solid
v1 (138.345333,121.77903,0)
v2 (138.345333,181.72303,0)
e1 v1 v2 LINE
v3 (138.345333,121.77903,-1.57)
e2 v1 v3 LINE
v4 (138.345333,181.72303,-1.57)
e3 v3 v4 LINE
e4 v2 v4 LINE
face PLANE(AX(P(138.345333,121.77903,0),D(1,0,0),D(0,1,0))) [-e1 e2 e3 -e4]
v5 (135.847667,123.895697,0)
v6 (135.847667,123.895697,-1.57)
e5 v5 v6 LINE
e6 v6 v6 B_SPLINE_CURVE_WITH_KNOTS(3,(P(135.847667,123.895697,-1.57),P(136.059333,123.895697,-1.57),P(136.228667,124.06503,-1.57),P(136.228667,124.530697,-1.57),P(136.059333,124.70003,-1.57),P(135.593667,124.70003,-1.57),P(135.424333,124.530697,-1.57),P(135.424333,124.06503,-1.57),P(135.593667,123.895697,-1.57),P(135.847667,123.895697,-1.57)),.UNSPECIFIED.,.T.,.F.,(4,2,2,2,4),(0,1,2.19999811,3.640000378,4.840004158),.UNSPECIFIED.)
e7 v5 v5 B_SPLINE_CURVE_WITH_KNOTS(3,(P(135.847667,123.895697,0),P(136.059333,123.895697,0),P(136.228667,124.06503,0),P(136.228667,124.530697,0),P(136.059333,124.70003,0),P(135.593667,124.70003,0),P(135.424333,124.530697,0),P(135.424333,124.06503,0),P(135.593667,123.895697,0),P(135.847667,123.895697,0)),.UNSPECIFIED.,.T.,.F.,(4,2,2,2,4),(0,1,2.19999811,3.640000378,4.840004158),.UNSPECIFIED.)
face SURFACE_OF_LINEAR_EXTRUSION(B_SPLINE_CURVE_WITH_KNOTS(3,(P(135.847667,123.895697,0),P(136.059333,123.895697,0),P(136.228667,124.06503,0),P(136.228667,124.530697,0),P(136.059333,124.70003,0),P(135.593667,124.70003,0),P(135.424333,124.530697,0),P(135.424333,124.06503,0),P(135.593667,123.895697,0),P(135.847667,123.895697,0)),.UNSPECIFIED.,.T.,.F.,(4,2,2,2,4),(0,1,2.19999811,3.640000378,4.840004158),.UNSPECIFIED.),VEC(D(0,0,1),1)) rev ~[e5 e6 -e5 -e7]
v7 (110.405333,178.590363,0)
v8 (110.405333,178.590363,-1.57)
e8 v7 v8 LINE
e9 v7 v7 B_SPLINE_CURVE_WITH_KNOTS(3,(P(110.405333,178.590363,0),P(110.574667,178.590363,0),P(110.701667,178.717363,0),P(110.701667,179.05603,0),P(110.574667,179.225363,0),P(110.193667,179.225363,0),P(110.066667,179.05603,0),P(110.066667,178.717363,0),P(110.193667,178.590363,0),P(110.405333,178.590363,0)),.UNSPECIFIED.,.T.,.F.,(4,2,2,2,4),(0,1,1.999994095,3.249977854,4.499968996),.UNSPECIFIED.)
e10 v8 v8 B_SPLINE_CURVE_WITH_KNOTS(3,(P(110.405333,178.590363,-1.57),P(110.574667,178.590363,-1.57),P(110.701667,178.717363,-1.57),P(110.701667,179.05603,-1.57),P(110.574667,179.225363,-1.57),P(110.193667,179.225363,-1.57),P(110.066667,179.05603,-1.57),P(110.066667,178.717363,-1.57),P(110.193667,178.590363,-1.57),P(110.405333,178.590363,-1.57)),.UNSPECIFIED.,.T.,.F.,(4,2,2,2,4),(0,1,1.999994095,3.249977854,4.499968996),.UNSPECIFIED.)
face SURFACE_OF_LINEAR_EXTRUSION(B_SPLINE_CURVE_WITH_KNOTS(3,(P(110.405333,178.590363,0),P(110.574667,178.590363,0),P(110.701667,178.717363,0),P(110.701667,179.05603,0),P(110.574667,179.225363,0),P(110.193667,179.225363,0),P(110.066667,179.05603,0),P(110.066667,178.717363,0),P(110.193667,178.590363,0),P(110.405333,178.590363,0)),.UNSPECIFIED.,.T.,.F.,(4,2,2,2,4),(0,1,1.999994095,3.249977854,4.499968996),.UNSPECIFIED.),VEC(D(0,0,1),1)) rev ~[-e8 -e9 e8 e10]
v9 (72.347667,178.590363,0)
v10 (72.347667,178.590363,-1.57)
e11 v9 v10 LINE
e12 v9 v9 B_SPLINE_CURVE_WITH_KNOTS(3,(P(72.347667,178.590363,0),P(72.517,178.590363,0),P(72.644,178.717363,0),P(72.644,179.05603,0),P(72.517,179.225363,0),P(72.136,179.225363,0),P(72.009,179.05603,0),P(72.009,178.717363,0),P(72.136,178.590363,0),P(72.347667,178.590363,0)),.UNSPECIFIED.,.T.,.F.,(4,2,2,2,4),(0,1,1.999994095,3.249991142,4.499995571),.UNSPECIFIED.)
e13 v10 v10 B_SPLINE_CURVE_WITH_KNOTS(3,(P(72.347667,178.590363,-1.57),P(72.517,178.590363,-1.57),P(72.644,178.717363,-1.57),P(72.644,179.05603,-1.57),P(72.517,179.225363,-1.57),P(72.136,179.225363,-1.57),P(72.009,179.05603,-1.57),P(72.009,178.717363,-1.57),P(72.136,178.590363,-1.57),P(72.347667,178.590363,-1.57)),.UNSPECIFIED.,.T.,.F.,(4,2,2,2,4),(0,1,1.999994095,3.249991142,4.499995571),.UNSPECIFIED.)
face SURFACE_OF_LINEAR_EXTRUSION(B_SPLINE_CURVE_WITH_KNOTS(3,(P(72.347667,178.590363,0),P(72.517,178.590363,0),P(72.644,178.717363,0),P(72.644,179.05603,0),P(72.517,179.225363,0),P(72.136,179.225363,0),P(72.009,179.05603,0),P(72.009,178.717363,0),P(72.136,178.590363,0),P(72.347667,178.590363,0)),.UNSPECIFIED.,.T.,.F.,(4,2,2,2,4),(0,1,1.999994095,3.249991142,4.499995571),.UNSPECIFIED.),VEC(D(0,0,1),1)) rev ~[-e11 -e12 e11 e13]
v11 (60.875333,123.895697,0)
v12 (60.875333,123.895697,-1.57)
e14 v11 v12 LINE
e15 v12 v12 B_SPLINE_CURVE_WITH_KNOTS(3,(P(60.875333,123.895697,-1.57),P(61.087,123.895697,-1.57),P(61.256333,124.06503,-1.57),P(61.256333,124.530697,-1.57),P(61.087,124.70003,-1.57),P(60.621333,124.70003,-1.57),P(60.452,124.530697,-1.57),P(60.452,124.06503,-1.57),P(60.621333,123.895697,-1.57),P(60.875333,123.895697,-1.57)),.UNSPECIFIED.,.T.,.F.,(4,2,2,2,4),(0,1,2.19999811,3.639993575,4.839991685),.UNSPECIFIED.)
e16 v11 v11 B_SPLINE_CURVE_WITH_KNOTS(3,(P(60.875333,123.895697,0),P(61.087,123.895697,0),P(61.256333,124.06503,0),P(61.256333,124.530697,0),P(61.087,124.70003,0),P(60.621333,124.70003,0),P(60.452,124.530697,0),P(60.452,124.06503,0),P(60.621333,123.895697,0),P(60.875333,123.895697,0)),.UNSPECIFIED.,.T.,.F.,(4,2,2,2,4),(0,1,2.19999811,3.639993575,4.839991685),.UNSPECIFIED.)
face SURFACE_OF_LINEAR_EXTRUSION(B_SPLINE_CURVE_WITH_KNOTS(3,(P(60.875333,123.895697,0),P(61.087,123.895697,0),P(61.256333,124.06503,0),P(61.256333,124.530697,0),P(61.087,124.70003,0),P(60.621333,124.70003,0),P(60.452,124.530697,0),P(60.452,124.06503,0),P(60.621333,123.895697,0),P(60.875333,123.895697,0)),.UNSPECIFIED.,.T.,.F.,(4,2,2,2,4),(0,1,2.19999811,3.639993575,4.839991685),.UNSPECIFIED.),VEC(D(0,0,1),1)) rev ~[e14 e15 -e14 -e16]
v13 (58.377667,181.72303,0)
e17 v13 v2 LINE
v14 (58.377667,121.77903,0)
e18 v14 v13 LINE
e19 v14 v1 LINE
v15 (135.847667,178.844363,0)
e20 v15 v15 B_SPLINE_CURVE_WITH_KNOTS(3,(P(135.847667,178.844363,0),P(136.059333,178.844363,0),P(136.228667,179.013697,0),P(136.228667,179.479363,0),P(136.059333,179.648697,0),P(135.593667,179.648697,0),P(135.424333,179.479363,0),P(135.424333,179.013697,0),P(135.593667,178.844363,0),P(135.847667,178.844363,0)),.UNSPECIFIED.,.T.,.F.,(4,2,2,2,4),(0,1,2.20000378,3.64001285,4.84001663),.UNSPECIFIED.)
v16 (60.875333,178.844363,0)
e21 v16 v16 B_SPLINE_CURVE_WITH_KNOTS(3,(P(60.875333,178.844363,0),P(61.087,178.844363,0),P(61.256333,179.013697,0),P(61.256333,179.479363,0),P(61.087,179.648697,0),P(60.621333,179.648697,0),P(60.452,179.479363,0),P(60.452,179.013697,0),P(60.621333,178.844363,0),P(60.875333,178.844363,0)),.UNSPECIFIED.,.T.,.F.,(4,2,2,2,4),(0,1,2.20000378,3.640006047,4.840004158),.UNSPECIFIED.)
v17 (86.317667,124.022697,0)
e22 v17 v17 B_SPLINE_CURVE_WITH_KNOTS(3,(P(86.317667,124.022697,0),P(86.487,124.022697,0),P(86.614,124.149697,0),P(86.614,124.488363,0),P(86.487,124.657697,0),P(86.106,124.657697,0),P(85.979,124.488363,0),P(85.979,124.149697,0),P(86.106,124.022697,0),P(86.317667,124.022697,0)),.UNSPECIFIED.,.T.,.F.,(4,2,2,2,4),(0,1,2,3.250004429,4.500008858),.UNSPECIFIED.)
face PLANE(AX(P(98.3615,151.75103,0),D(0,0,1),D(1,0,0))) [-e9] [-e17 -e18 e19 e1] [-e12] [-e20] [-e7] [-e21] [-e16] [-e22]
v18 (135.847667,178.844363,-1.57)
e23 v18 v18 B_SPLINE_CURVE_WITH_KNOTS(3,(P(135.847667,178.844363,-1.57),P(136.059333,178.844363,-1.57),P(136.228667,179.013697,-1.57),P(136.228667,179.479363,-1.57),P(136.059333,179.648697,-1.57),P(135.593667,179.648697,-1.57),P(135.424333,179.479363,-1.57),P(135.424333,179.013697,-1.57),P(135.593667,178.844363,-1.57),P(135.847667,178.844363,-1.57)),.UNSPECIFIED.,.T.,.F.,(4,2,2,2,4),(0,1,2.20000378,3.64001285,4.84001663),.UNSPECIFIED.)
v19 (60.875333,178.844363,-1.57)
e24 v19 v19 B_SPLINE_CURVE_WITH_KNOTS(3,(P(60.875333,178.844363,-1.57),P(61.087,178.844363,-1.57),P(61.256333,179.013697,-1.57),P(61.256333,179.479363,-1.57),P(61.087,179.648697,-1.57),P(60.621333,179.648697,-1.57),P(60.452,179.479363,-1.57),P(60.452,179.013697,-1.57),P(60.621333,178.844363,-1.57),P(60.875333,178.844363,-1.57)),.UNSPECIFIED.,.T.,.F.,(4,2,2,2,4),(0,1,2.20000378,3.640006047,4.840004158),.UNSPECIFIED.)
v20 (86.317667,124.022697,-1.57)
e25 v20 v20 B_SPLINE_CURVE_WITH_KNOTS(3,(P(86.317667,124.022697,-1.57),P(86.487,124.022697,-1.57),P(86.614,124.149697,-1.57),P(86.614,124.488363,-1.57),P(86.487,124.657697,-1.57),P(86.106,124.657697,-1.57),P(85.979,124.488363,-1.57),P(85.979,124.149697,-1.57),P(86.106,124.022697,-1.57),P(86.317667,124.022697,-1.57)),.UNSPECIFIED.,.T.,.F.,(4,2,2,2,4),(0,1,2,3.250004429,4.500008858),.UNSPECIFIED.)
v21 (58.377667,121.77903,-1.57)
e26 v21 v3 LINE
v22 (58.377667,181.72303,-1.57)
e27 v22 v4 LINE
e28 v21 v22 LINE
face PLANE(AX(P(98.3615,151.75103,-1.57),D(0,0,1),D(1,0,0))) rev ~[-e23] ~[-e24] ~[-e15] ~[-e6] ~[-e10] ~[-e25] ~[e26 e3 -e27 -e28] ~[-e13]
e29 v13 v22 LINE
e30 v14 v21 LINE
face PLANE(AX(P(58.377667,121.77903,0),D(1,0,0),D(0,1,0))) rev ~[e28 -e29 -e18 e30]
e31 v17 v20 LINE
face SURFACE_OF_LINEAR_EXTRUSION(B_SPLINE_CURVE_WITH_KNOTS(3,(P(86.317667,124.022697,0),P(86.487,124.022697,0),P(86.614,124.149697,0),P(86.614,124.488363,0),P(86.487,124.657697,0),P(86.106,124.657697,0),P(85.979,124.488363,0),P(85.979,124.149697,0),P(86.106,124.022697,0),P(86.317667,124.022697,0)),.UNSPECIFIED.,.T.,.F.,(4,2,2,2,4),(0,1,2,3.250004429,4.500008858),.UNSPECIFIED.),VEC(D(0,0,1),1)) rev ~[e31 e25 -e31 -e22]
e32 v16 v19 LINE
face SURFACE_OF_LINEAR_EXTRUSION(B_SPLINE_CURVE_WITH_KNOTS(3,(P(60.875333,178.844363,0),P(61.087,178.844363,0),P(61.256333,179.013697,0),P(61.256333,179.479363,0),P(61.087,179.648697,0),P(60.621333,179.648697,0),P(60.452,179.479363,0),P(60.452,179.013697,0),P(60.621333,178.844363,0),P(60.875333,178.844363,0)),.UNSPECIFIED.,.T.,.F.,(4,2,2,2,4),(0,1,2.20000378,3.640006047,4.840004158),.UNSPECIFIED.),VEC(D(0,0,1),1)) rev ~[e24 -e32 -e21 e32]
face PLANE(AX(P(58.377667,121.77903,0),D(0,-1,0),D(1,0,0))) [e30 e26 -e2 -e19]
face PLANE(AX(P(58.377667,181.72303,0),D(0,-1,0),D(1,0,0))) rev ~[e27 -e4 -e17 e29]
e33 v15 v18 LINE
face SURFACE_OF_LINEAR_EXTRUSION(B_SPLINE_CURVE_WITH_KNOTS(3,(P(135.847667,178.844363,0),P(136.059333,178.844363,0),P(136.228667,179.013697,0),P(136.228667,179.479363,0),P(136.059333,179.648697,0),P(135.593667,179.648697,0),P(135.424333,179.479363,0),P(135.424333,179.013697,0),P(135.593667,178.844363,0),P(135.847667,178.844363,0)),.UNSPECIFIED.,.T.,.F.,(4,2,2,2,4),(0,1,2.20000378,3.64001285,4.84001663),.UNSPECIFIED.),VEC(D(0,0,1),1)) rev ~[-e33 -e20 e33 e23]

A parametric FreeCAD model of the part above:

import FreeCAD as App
import Part
import Sketcher
from FreeCAD import Vector
Q = App.Units.Quantity

doc = App.newDocument("Part")
body = doc.addObject("PartDesign::Body", "Body")

# Sketch on XY plane
sketch1 = body.newObject("Sketcher::SketchObject", "Sketch")
sketch1.AttachmentSupport = (doc.getObject("XY_Plane"), [""])
sketch1.MapMode = "FlatFace"
sketch1.addGeometry(Part.LineSegment(Vector(58.377667, 181.72303, 0), Vector(58.377667, 121.77903, 0)), False)
sketch1.addGeometry(Part.LineSegment(Vector(58.377667, 121.77903, 0), Vector(138.345333, 121.77903, 0)), False)
sketch1.addGeometry(Part.LineSegment(Vector(138.345333, 121.77903, 0), Vector(138.345333, 181.72303, 0)), False)
sketch1.addGeometry(Part.LineSegment(Vector(138.345333, 181.72303, 0), Vector(58.377667, 181.72303, 0)), False)
sketch1.addGeometry(Part.BSplineCurve([Vector(60.875333, 123.895697, 0), Vector(61.087, 123.895697, 0), Vector(61.256333, 124.06503, 0), Vector(61.256333, 124.530697, 0), Vector(61.087, 124.70003, 0), Vector(60.621333, 124.70003, 0), Vector(60.452, 124.530697, 0), Vector(60.452, 124.06503, 0), Vector(60.621333, 123.895697, 0), Vector(60.875333, 123.895697, 0)], [4, 2, 2, 2, 4], [0, 1, 2.19999811, 3.639993575, 4.839991685], False, 3, [1, 1, 1, 1, 1, 1, 1, 1, 1, 1], False), False)
sketch1.addGeometry(Part.BSplineCurve([Vector(86.317667, 124.022697, 0), Vector(86.487, 124.022697, 0), Vector(86.614, 124.149697, 0), Vector(86.614, 124.488363, 0), Vector(86.487, 124.657697, 0), Vector(86.106, 124.657697, 0), Vector(85.979, 124.488363, 0), Vector(85.979, 124.149697, 0), Vector(86.106, 124.022697, 0), Vector(86.317667, 124.022697, 0)], [4, 2, 2, 2, 4], [0, 1, 2, 3.250004429, 4.500008858], False, 3, [1, 1, 1, 1, 1, 1, 1, 1, 1, 1], False), False)
sketch1.addGeometry(Part.BSplineCurve([Vector(135.847667, 123.895697, 0), Vector(136.059333, 123.895697, 0), Vector(136.228667, 124.06503, 0), Vector(136.228667, 124.530697, 0), Vector(136.059333, 124.70003, 0), Vector(135.593667, 124.70003, 0), Vector(135.424333, 124.530697, 0), Vector(135.424333, 124.06503, 0), Vector(135.593667, 123.895697, 0), Vector(135.847667, 123.895697, 0)], [4, 2, 2, 2, 4], [0, 1, 2.19999811, 3.640000378, 4.840004158], False, 3, [1, 1, 1, 1, 1, 1, 1, 1, 1, 1], False), False)
sketch1.addGeometry(Part.BSplineCurve([Vector(60.875333, 178.844363, 0), Vector(61.087, 178.844363, 0), Vector(61.256333, 179.013697, 0), Vector(61.256333, 179.479363, 0), Vector(61.087, 179.648697, 0), Vector(60.621333, 179.648697, 0), Vector(60.452, 179.479363, 0), Vector(60.452, 179.013697, 0), Vector(60.621333, 178.844363, 0), Vector(60.875333, 178.844363, 0)], [4, 2, 2, 2, 4], [0, 1, 2.20000378, 3.640006047, 4.840004158], False, 3, [1, 1, 1, 1, 1, 1, 1, 1, 1, 1], False), False)
sketch1.addGeometry(Part.BSplineCurve([Vector(72.347667, 178.590363, 0), Vector(72.517, 178.590363, 0), Vector(72.644, 178.717363, 0), Vector(72.644, 179.05603, 0), Vector(72.517, 179.225363, 0), Vector(72.136, 179.225363, 0), Vector(72.009, 179.05603, 0), Vector(72.009, 178.717363, 0), Vector(72.136, 178.590363, 0), Vector(72.347667, 178.590363, 0)], [4, 2, 2, 2, 4], [0, 1, 1.999994095, 3.249991142, 4.499995571], False, 3, [1, 1, 1, 1, 1, 1, 1, 1, 1, 1], False), False)
sketch1.addGeometry(Part.BSplineCurve([Vector(110.405333, 178.590363, 0), Vector(110.574667, 178.590363, 0), Vector(110.701667, 178.717363, 0), Vector(110.701667, 179.05603, 0), Vector(110.574667, 179.225363, 0), Vector(110.193667, 179.225363, 0), Vector(110.066667, 179.05603, 0), Vector(110.066667, 178.717363, 0), Vector(110.193667, 178.590363, 0), Vector(110.405333, 178.590363, 0)], [4, 2, 2, 2, 4], [0, 1, 1.999994095, 3.249977854, 4.499968996], False, 3, [1, 1, 1, 1, 1, 1, 1, 1, 1, 1], False), False)
sketch1.addGeometry(Part.BSplineCurve([Vector(135.847667, 178.844363, 0), Vector(136.059333, 178.844363, 0), Vector(136.228667, 179.013697, 0), Vector(136.228667, 179.479363, 0), Vector(136.059333, 179.648697, 0), Vector(135.593667, 179.648697, 0), Vector(135.424333, 179.479363, 0), Vector(135.424333, 179.013697, 0), Vector(135.593667, 178.844363, 0), Vector(135.847667, 178.844363, 0)], [4, 2, 2, 2, 4], [0, 1, 2.20000378, 3.64001285, 4.84001663], False, 3, [1, 1, 1, 1, 1, 1, 1, 1, 1, 1], False), False)
sketch1.addConstraint(Sketcher.Constraint("Block", 4))
sketch1.addConstraint(Sketcher.Constraint("Block", 5))
sketch1.addConstraint(Sketcher.Constraint("Block", 6))
sketch1.addConstraint(Sketcher.Constraint("Block", 7))
sketch1.addConstraint(Sketcher.Constraint("Block", 8))
sketch1.addConstraint(Sketcher.Constraint("Block", 9))
sketch1.addConstraint(Sketcher.Constraint("Block", 10))
sketch1.addConstraint(Sketcher.Constraint("Coincident", 0, 2, 1, 1))
sketch1.addConstraint(Sketcher.Constraint("Coincident", 1, 2, 2, 1))
sketch1.addConstraint(Sketcher.Constraint("Coincident", 2, 2, 3, 1))
sketch1.addConstraint(Sketcher.Constraint("Coincident", 3, 2, 0, 1))
sketch1.addConstraint(Sketcher.Constraint("Vertical", 0))
sketch1.addConstraint(Sketcher.Constraint("Horizontal", 1))
sketch1.addConstraint(Sketcher.Constraint("Vertical", 2))
sketch1.addConstraint(Sketcher.Constraint("Horizontal", 3))
sketch1.addConstraint(Sketcher.Constraint("DistanceY", 0, 2, 0, 1, Q("2.36 in")))
sketch1.addConstraint(Sketcher.Constraint("DistanceX", 1, 1, 1, 2, Q("79.967666 mm")))
sketch1.addConstraint(Sketcher.Constraint("DistanceY", -1, 1, 0, 2, Q("121.77903 mm")))
sketch1.addConstraint(Sketcher.Constraint("DistanceX", -1, 1, 0, 2, Q("58.377667 mm")))
pad1 = body.newObject("PartDesign::Pad", "Pad")
pad1.Profile = sketch1
pad1.Length = 1.57
pad1.Reversed = True

doc.recompute()
